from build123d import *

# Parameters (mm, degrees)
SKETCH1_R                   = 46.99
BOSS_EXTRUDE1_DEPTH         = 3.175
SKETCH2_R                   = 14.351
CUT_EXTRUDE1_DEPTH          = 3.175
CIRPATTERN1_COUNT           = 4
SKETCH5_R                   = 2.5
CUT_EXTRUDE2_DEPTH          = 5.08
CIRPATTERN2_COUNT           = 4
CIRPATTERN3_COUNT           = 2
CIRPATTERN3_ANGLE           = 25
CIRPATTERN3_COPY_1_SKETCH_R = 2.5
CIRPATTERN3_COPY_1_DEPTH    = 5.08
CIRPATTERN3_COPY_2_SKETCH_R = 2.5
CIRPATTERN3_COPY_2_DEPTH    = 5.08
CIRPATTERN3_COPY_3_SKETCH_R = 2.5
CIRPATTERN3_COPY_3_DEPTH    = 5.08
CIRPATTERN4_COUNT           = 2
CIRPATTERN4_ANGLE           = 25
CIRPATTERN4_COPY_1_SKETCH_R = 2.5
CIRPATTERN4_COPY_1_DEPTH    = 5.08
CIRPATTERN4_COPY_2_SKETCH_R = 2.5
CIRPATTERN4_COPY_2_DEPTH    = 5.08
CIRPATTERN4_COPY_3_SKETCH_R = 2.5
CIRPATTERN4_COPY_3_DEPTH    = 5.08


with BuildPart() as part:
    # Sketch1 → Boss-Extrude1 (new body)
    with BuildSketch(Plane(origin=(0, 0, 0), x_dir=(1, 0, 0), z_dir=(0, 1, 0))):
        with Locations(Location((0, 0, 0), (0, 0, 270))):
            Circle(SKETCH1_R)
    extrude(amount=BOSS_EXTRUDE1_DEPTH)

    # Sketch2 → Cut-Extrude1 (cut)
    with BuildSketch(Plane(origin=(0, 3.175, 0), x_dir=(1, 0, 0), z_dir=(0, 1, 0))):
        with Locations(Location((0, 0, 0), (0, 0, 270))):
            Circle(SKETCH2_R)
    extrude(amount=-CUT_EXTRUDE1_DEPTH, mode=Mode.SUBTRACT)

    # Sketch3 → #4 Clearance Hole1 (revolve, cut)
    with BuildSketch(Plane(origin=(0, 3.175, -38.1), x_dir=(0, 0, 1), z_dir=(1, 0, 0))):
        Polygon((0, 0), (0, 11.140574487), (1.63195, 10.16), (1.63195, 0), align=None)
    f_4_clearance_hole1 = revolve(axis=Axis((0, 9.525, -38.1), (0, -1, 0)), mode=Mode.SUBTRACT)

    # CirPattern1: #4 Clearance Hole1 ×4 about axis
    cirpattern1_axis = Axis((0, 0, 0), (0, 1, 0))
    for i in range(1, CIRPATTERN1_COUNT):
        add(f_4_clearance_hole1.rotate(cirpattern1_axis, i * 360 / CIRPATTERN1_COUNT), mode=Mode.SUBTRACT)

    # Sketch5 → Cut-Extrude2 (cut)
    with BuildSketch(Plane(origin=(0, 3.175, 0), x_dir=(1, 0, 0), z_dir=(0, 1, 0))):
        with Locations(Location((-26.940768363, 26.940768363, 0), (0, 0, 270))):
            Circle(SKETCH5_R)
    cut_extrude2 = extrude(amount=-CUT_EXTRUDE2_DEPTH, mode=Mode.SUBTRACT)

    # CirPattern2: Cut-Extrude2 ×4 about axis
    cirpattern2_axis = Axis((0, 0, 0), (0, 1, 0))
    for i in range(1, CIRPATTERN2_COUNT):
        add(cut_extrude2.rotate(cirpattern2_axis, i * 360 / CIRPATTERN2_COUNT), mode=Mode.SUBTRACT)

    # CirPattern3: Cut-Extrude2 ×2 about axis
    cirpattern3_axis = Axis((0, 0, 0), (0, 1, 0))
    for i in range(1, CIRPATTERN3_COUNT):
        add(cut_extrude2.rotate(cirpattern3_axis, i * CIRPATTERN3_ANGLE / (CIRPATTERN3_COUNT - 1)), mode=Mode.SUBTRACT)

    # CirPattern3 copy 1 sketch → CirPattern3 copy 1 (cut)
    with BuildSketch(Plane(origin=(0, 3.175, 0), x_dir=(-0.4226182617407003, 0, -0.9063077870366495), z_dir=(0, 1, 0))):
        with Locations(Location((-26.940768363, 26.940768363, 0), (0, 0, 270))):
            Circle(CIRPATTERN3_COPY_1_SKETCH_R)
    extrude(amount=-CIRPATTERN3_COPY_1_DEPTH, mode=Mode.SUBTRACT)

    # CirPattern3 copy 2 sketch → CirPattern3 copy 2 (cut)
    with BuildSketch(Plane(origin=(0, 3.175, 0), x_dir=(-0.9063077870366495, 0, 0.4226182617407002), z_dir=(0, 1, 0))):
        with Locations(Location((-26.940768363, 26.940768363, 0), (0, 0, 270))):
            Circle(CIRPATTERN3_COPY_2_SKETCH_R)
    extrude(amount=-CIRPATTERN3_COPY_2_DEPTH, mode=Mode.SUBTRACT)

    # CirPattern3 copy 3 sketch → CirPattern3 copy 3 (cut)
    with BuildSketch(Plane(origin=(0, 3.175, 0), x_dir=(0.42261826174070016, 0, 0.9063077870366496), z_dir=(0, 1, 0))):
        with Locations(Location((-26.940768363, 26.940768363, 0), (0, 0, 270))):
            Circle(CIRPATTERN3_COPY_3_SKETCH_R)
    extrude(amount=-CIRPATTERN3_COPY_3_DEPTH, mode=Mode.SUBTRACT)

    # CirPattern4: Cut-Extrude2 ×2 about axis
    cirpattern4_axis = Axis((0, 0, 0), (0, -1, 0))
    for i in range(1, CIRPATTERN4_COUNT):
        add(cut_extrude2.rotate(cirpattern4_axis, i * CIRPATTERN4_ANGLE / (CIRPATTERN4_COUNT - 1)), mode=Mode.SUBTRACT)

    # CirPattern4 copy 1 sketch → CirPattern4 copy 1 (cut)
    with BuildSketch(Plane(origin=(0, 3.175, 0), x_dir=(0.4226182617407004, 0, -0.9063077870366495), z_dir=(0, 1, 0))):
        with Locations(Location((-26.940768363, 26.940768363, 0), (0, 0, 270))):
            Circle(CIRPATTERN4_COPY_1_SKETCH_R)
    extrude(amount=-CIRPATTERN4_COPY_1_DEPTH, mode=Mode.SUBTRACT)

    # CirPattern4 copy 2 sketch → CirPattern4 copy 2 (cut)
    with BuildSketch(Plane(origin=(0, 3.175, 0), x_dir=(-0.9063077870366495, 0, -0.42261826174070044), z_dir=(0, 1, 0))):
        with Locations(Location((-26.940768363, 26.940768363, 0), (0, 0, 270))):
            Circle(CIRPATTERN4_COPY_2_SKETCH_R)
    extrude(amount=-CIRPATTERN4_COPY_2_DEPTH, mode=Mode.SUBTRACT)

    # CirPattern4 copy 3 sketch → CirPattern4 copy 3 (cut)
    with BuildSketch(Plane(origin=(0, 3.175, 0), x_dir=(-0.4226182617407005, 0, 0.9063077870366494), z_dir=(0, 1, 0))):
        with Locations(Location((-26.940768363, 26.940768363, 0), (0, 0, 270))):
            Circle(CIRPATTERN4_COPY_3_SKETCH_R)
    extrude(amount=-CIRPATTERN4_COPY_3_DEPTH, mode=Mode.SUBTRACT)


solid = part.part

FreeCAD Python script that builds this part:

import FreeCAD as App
import Part
import Sketcher

V = App.Vector
Q = App.Units.Quantity

doc = App.newDocument("Part")
body = doc.addObject("PartDesign::Body", "Body")

sketch1 = body.newObject("Sketcher::SketchObject", "Sketch")
sketch1.AttachmentSupport = (doc.getObject("XZ_Plane"), [""])
sketch1.MapMode = "FlatFace"
sketch1.addGeometry(Part.Circle(V(0, 0, 0), V(0, 0, 1), 47), False)
sketch1.addConstraint(Sketcher.Constraint("Coincident", 0, 3, -1, 1))
sketch1.addConstraint(Sketcher.Constraint("Diameter", 0, Q("3.7 in")))
pad1 = body.newObject("PartDesign::Pad", "Pad")
pad1.Profile = sketch1
pad1.Length = Q("0.125 in")
pad1.Reversed = True

sketch2 = body.newObject("Sketcher::SketchObject", "Sketch001")
sketch2.AttachmentSupport = (doc.getObject("XZ_Plane"), [""])
sketch2.MapMode = "FlatFace"
sketch2.AttachmentOffset = App.Placement(V(0, 0, -0.125 * 25.4), App.Rotation())
sketch2.addGeometry(Part.Circle(V(0, 0, 0), V(0, 0, 1), 14), False)
sketch2.addConstraint(Sketcher.Constraint("Coincident", 0, 3, -1, 1))
sketch2.addConstraint(Sketcher.Constraint("Diameter", 0, Q("1.13 in")))
pocket1 = body.newObject("PartDesign::Pocket", "Pocket")
pocket1.Profile = sketch2
pocket1.Length = Q("0.125 in")
pocket1.Reversed = True

sketch3 = body.newObject("Sketcher::SketchObject", "Sketch002")
sketch3.AttachmentSupport = (doc.getObject("YZ_Plane"), [""])
sketch3.MapMode = "FlatFace"
sketch3.addGeometry(Part.LineSegment(V(-8, -38.1, 0), V(3.2, -38.1, 0)), False)
sketch3.addGeometry(Part.LineSegment(V(3.2, -38.1, 0), V(3.2, -36.5, 0)), False)
sketch3.addGeometry(Part.LineSegment(V(3.2, -36.5, 0), V(-7, -36.5, 0)), False)
sketch3.addGeometry(Part.LineSegment(V(-7, -36.5, 0), V(-8, -38.1, 0)), False)
sketch3.addGeometry(Part.LineSegment(V(3.2, -38.1, 0), V(-8, -38.1, 0)), True)
sketch3.addConstraint(Sketcher.Constraint("Coincident", 0, 2, 1, 1))
sketch3.addConstraint(Sketcher.Constraint("Coincident", 1, 2, 2, 1))
sketch3.addConstraint(Sketcher.Constraint("Coincident", 2, 2, 3, 1))
sketch3.addConstraint(Sketcher.Constraint("Coincident", 3, 2, 0, 1))
sketch3.addConstraint(Sketcher.Constraint("Horizontal", 0))
sketch3.addConstraint(Sketcher.Constraint("Vertical", 1))
sketch3.addConstraint(Sketcher.Constraint("Horizontal", 2))
sketch3.addConstraint(Sketcher.Constraint("Horizontal", 4))
sketch3.addConstraint(Sketcher.Constraint("Coincident", 4, 1, 0, 2))
sketch3.addConstraint(Sketcher.Constraint("Equal", 0, 4))
sketch3.addConstraint(Sketcher.Constraint("DistanceX", 2, 2, 2, 1, Q("0.4 in")))
sketch3.addConstraint(Sketcher.Constraint("Angle", 3, Q("-121 deg")))
sketch3.addConstraint(Sketcher.Constraint("DistanceY", 0, 2, -1, 1, Q("1.5 in")))
sketch3.addConstraint(Sketcher.Constraint("DistanceX", -1, 1, 0, 2, Q("0.125 in")))
sketch3.addConstraint(Sketcher.Constraint("DistanceY", 1, 1, 1, 2, Q("1.63195 mm")))
groove = body.newObject("PartDesign::Groove", "Groove")
groove.Profile = sketch3
groove.ReferenceAxis = (sketch3, ["Axis0"])
groove.Angle = 360
doc.recompute()

polarpattern = body.newObject("PartDesign::PolarPattern", "PolarPattern")
polarpattern.Originals = [groove]
polarpattern.Axis = (doc.getObject("Y_Axis"), [""])
polarpattern.Angle = 360
polarpattern.Occurrences = 4
body.Tip = polarpattern

sketch4 = body.newObject("Sketcher::SketchObject", "Sketch003")
sketch4.AttachmentSupport = (doc.getObject("XZ_Plane"), [""])
sketch4.MapMode = "FlatFace"
sketch4.AttachmentOffset = App.Placement(V(0, 0, -0.125 * 25.4), App.Rotation())
sketch4.addGeometry(Part.Circle(V(-26.9, -26.9, 0), V(0, 0, 1), 2.5), False)
sketch4.addConstraint(Sketcher.Constraint("Diameter", 0, Q("5 mm")))
sketch4.addConstraint(Sketcher.Constraint("DistanceX", 0, 3, -1, 1, Q("26.940768 mm")))
sketch4.addConstraint(Sketcher.Constraint("DistanceY", 0, 3, -1, 1, Q("26.940768 mm")))
pocket2 = body.newObject("PartDesign::Pocket", "Pocket001")
pocket2.Profile = sketch4
pocket2.Length = Q("0.2 in")
pocket2.Reversed = True
doc.recompute()

polarpattern2 = body.newObject("PartDesign::PolarPattern", "PolarPattern001")
polarpattern2.Originals = [pocket2]
polarpattern2.Axis = (doc.getObject("Y_Axis"), [""])
polarpattern2.Angle = 360
polarpattern2.Occurrences = 4
body.Tip = polarpattern2
doc.recompute()

polarpattern3 = body.newObject("PartDesign::PolarPattern", "PolarPattern002")
polarpattern3.Originals = [pocket2]
polarpattern3.Axis = (doc.getObject("Y_Axis"), [""])
polarpattern3.Angle = 25
polarpattern3.Occurrences = 2
body.Tip = polarpattern3

sketch5 = body.newObject("Sketcher::SketchObject", "Sketch004")
sketch5.AttachmentSupport = (doc.getObject("XZ_Plane"), [""])
sketch5.MapMode = "FlatFace"
sketch5.AttachmentOffset = App.Placement(V(0, 0, -0.125 * 25.4), App.Rotation())
sketch5.addGeometry(Part.Circle(V(-13, 35.8, 0), V(0, 0, 1), 2.5), False)
sketch5.addConstraint(Sketcher.Constraint("Diameter", 0, Q("5 mm")))
sketch5.addConstraint(Sketcher.Constraint("DistanceY", -1, 1, 0, 3, Q("35.802289 mm")))
sketch5.addConstraint(Sketcher.Constraint("DistanceX", 0, 3, -1, 1, Q("13.030967 mm")))
pocket3 = body.newObject("PartDesign::Pocket", "Pocket002")
pocket3.Profile = sketch5
pocket3.Length = Q("0.2 in")
pocket3.Reversed = True

sketch6 = body.newObject("Sketcher::SketchObject", "Sketch005")
sketch6.AttachmentSupport = (doc.getObject("XZ_Plane"), [""])
sketch6.MapMode = "FlatFace"
sketch6.AttachmentOffset = App.Placement(V(0, 0, -0.125 * 25.4), App.Rotation())
sketch6.addGeometry(Part.Circle(V(35.8, 13, 0), V(0, 0, 1), 2.5), False)
sketch6.addConstraint(Sketcher.Constraint("Diameter", 0, Q("5 mm")))
sketch6.addConstraint(Sketcher.Constraint("DistanceX", -1, 1, 0, 3, Q("35.802289 mm")))
sketch6.addConstraint(Sketcher.Constraint("DistanceY", -1, 1, 0, 3, Q("13.030967 mm")))
pocket4 = body.newObject("PartDesign::Pocket", "Pocket003")
pocket4.Profile = sketch6
pocket4.Length = Q("0.2 in")
pocket4.Reversed = True

sketch7 = body.newObject("Sketcher::SketchObject", "Sketch006")
sketch7.AttachmentSupport = (doc.getObject("XZ_Plane"), [""])
sketch7.MapMode = "FlatFace"
sketch7.AttachmentOffset = App.Placement(V(0, 0, -0.125 * 25.4), App.Rotation())
sketch7.addGeometry(Part.Circle(V(13, -35.8, 0), V(0, 0, 1), 2.5), False)
sketch7.addConstraint(Sketcher.Constraint("Diameter", 0, Q("5 mm")))
sketch7.addConstraint(Sketcher.Constraint("DistanceY", 0, 3, -1, 1, Q("35.802289 mm")))
sketch7.addConstraint(Sketcher.Constraint("DistanceX", -1, 1, 0, 3, Q("13.030967 mm")))
pocket5 = body.newObject("PartDesign::Pocket", "Pocket004")
pocket5.Profile = sketch7
pocket5.Length = Q("0.2 in")
pocket5.Reversed = True
doc.recompute()

polarpattern4 = body.newObject("PartDesign::PolarPattern", "PolarPattern003")
polarpattern4.Originals = [pocket2]
polarpattern4.Axis = (doc.getObject("Y_Axis"), [""])
polarpattern4.Angle = 25
polarpattern4.Occurrences = 2
polarpattern4.Reversed = True
body.Tip = polarpattern4

sketch8 = body.newObject("Sketcher::SketchObject", "Sketch007")
sketch8.AttachmentSupport = (doc.getObject("XZ_Plane"), [""])
sketch8.MapMode = "FlatFace"
sketch8.AttachmentOffset = App.Placement(V(0, 0, -0.125 * 25.4), App.Rotation())
sketch8.addGeometry(Part.Circle(V(-35.8, 13, 0), V(0, 0, 1), 2.5), False)
sketch8.addConstraint(Sketcher.Constraint("Diameter", 0, Q("5 mm")))
sketch8.addConstraint(Sketcher.Constraint("DistanceX", 0, 3, -1, 1, Q("35.802289 mm")))
sketch8.addConstraint(Sketcher.Constraint("DistanceY", -1, 1, 0, 3, Q("13.030967 mm")))
pocket6 = body.newObject("PartDesign::Pocket", "Pocket005")
pocket6.Profile = sketch8
pocket6.Length = Q("0.2 in")
pocket6.Reversed = True

sketch9 = body.newObject("Sketcher::SketchObject", "Sketch008")
sketch9.AttachmentSupport = (doc.getObject("XZ_Plane"), [""])
sketch9.MapMode = "FlatFace"
sketch9.AttachmentOffset = App.Placement(V(0, 0, -0.125 * 25.4), App.Rotation())
sketch9.addGeometry(Part.Circle(V(13, 35.8, 0), V(0, 0, 1), 2.5), False)
sketch9.addConstraint(Sketcher.Constraint("Diameter", 0, Q("5 mm")))
sketch9.addConstraint(Sketcher.Constraint("DistanceY", -1, 1, 0, 3, Q("35.802289 mm")))
sketch9.addConstraint(Sketcher.Constraint("DistanceX", -1, 1, 0, 3, Q("13.030967 mm")))
pocket7 = body.newObject("PartDesign::Pocket", "Pocket006")
pocket7.Profile = sketch9
pocket7.Length = Q("0.2 in")
pocket7.Reversed = True

sketch10 = body.newObject("Sketcher::SketchObject", "Sketch009")
sketch10.AttachmentSupport = (doc.getObject("XZ_Plane"), [""])
sketch10.MapMode = "FlatFace"
sketch10.AttachmentOffset = App.Placement(V(0, 0, -0.125 * 25.4), App.Rotation())
sketch10.addGeometry(Part.Circle(V(35.8, -13, 0), V(0, 0, 1), 2.5), False)
sketch10.addConstraint(Sketcher.Constraint("Diameter", 0, Q("5 mm")))
sketch10.addConstraint(Sketcher.Constraint("DistanceX", -1, 1, 0, 3, Q("35.802289 mm")))
sketch10.addConstraint(Sketcher.Constraint("DistanceY", 0, 3, -1, 1, Q("13.030967 mm")))
pocket8 = body.newObject("PartDesign::Pocket", "Pocket007")
pocket8.Profile = sketch10
pocket8.Length = Q("0.2 in")
pocket8.Reversed = True

doc.recompute()
